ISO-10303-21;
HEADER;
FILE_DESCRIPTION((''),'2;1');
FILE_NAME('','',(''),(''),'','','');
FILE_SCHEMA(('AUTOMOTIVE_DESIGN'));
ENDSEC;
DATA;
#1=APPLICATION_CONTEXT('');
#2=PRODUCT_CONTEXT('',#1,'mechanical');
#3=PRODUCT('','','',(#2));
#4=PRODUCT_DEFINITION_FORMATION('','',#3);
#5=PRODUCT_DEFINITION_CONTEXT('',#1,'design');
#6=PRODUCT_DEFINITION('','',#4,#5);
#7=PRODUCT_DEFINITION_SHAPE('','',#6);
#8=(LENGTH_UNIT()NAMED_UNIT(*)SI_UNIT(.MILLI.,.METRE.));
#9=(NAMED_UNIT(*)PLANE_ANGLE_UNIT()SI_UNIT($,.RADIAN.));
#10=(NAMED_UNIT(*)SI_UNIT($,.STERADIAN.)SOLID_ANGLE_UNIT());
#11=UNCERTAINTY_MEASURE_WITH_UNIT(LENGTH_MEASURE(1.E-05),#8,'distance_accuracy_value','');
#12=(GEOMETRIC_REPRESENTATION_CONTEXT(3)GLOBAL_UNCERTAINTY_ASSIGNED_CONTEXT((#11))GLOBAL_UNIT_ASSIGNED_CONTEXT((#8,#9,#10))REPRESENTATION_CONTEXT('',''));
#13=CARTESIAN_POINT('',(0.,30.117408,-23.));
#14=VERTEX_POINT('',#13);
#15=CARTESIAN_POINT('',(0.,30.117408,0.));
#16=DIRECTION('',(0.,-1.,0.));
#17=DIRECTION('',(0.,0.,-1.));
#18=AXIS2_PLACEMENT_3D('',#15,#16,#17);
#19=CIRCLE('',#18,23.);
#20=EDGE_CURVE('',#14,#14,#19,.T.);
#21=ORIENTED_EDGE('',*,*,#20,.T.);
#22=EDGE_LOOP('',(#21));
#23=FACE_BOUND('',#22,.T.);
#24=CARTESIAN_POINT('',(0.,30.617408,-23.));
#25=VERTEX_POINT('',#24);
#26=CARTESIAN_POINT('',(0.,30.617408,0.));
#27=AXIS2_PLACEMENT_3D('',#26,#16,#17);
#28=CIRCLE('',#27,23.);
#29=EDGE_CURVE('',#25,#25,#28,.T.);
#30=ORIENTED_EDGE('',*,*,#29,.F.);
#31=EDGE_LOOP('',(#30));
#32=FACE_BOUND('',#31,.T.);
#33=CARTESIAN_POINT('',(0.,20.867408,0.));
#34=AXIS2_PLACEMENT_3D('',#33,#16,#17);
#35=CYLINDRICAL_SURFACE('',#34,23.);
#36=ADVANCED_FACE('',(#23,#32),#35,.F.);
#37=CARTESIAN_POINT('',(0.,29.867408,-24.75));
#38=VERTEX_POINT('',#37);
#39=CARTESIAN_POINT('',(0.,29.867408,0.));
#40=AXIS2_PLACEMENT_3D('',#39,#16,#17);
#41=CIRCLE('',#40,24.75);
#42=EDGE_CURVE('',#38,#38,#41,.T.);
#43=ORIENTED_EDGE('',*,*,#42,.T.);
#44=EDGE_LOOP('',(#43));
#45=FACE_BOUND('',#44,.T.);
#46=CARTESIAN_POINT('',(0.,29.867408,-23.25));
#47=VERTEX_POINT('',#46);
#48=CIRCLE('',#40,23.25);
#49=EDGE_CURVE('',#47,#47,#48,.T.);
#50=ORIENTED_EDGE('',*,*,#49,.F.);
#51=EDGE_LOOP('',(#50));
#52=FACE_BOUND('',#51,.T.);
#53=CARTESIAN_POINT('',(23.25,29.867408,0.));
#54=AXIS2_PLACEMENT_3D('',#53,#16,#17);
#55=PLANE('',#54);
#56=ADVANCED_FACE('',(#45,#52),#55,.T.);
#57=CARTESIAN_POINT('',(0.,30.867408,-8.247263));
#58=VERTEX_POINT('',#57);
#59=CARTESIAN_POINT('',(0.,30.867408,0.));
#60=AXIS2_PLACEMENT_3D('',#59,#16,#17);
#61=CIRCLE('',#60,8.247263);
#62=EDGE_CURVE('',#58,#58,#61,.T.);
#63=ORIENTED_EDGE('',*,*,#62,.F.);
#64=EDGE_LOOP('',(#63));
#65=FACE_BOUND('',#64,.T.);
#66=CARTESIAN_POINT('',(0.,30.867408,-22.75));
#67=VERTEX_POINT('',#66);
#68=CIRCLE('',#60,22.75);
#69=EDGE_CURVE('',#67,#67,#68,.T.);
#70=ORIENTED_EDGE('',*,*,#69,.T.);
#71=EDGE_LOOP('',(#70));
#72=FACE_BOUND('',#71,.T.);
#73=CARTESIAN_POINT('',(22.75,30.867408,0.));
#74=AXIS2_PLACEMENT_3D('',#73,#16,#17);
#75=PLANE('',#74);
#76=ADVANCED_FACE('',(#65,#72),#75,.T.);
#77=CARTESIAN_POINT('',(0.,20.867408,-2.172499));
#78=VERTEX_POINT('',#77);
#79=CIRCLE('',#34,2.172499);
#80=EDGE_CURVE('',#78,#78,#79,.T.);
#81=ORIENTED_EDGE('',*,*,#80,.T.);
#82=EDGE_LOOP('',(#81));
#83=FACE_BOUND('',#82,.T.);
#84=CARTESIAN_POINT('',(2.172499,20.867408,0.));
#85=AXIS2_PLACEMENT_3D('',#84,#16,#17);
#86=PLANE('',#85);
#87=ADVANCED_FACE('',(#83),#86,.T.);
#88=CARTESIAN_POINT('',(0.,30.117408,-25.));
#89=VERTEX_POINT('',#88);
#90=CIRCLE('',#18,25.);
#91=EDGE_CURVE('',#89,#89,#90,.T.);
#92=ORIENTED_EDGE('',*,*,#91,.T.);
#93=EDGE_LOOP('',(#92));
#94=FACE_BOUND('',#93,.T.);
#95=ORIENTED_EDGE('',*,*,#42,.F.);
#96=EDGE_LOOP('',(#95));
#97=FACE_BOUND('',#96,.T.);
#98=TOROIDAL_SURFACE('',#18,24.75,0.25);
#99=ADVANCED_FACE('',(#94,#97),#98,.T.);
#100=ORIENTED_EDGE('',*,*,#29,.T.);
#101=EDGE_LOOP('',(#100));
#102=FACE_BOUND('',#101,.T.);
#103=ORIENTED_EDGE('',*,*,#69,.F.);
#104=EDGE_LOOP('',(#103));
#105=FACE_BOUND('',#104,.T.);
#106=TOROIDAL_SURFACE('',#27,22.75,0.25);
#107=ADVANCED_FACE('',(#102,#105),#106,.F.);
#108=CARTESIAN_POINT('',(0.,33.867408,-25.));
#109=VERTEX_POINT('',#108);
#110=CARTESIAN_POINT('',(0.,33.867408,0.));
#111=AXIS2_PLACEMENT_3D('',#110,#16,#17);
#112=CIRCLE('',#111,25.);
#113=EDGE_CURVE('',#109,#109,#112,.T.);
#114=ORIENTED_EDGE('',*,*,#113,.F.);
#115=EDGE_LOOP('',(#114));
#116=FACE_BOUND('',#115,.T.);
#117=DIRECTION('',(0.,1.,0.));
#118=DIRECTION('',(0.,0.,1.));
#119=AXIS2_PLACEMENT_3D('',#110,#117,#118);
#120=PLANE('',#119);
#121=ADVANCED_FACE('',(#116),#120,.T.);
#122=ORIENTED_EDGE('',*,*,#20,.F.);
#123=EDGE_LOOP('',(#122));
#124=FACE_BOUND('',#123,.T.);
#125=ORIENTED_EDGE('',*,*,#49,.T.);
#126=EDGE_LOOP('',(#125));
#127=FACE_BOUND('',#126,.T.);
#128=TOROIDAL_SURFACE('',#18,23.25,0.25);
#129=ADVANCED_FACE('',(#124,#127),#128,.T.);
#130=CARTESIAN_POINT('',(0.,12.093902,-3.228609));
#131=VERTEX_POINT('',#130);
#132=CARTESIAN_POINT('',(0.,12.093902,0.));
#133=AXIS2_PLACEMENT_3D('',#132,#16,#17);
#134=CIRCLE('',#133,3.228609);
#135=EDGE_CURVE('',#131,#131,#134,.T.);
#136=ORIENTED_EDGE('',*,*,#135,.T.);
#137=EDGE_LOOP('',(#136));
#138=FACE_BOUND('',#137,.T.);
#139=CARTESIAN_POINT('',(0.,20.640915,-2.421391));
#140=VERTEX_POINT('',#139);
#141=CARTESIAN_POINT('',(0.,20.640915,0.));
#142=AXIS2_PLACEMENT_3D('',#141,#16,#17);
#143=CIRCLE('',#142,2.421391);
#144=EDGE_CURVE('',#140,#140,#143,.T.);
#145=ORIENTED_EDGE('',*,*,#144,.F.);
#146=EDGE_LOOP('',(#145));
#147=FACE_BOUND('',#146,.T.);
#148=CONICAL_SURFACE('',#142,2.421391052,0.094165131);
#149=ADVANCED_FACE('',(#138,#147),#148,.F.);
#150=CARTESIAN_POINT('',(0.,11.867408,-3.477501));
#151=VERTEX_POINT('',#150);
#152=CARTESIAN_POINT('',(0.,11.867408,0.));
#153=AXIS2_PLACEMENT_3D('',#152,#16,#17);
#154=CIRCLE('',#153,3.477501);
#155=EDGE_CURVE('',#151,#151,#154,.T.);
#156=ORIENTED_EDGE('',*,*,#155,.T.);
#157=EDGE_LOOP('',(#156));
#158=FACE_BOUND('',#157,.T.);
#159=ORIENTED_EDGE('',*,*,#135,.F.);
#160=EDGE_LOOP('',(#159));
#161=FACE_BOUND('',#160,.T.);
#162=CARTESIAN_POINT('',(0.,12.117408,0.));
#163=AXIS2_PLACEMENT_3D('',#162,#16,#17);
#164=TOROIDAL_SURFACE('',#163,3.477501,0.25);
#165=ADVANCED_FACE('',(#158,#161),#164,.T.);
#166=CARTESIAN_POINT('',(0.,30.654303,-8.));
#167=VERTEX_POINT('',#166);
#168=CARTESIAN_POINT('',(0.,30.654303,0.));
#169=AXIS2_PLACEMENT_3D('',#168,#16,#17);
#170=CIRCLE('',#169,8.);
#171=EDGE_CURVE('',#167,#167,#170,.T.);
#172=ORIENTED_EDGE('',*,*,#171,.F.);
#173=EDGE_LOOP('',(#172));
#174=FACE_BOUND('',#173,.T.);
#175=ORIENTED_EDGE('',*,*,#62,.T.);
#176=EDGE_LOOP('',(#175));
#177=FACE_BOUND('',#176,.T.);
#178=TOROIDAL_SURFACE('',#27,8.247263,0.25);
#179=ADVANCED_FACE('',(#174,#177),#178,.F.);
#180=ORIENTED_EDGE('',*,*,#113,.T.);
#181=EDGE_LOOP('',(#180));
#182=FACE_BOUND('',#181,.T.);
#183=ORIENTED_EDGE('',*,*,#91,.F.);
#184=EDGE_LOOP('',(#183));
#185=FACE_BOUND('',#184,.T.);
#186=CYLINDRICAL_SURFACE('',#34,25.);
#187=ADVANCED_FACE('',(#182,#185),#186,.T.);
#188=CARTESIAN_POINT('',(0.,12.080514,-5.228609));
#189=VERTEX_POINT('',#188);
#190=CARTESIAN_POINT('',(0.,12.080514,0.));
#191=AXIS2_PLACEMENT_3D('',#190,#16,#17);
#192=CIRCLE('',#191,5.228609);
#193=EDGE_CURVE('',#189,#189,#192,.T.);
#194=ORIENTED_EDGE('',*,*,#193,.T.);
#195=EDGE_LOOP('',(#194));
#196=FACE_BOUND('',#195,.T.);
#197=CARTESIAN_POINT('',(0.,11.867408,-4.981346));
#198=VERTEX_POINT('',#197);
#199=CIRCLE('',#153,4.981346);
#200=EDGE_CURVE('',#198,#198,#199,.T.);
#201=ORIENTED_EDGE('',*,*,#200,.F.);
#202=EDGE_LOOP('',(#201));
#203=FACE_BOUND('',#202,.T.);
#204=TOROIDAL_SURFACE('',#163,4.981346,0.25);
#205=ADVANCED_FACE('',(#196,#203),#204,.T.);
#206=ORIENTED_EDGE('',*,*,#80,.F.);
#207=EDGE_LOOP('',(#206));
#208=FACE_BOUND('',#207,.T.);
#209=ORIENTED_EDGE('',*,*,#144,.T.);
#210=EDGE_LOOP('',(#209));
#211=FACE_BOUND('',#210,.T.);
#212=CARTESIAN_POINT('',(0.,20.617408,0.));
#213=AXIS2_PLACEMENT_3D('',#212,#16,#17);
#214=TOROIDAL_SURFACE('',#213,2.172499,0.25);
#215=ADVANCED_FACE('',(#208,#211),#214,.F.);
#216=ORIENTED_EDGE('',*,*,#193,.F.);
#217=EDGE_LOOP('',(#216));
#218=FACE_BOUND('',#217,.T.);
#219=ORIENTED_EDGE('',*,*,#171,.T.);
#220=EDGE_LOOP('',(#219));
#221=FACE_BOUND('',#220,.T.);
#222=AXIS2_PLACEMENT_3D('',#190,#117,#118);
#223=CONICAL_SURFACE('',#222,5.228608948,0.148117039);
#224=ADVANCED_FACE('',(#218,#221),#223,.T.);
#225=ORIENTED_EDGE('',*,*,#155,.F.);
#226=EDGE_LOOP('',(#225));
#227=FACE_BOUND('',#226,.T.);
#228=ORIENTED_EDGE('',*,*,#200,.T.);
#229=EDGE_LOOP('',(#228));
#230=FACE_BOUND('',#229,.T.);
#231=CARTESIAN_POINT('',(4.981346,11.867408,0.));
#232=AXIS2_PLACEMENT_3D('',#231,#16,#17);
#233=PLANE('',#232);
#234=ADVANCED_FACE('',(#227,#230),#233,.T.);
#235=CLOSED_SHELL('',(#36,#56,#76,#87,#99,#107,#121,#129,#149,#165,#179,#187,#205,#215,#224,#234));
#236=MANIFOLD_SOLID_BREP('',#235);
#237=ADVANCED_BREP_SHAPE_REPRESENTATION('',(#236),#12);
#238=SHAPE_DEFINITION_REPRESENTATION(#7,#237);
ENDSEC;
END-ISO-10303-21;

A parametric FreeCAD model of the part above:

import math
import FreeCAD as App
import Part
import Sketcher
from FreeCAD import Vector
Q = App.Units.Quantity

doc = App.newDocument("Part")
body = doc.addObject("PartDesign::Body", "Body")

sketch1 = body.newObject("Sketcher::SketchObject", "Sketch")
sketch1.AttachmentSupport = (doc.getObject("XY_Plane"), [""])
sketch1.MapMode = "FlatFace"
sketch1.addGeometry(Part.LineSegment(Vector(2.42, 20.64, 0), Vector(3.23, 12.09, 0)), False)
sketch1.addGeometry(Part.ArcOfCircle(Part.Circle(Vector(3.48, 12.12, 0), Vector(0, 0, 1), 0.25), math.radians(-175), math.radians(-90)), False)
sketch1.addGeometry(Part.LineSegment(Vector(3.48, 11.87, 0), Vector(4.98, 11.87, 0)), False)
sketch1.addGeometry(Part.ArcOfCircle(Part.Circle(Vector(4.98, 12.12, 0), Vector(0, 0, 1), 0.25), math.radians(-90), math.radians(-8)), False)
sketch1.addGeometry(Part.LineSegment(Vector(5.23, 12.08, 0), Vector(8, 30.65, 0)), False)
sketch1.addGeometry(Part.ArcOfCircle(Part.Circle(Vector(8.25, 30.62, 0), Vector(0, 0, 1), 0.25), math.radians(90), math.radians(172)), False)
sketch1.addGeometry(Part.LineSegment(Vector(8.25, 30.87, 0), Vector(22.75, 30.87, 0)), False)
sketch1.addGeometry(Part.ArcOfCircle(Part.Circle(Vector(22.75, 30.62, 0), Vector(0, 0, 1), 0.25), math.radians(0), math.radians(90)), False)
sketch1.addGeometry(Part.LineSegment(Vector(23, 30.62, 0), Vector(23, 30.12, 0)), False)
sketch1.addGeometry(Part.ArcOfCircle(Part.Circle(Vector(23.25, 30.12, 0), Vector(0, 0, 1), 0.25), math.radians(-180), math.radians(-90)), False)
sketch1.addGeometry(Part.LineSegment(Vector(23.25, 29.87, 0), Vector(24.75, 29.87, 0)), False)
sketch1.addGeometry(Part.ArcOfCircle(Part.Circle(Vector(24.75, 30.12, 0), Vector(0, 0, 1), 0.25), math.radians(-90), math.radians(0)), False)
sketch1.addGeometry(Part.LineSegment(Vector(25, 30.12, 0), Vector(25, 33.87, 0)), False)
sketch1.addGeometry(Part.LineSegment(Vector(25, 33.87, 0), Vector(0, 33.87, 0)), False)
sketch1.addGeometry(Part.LineSegment(Vector(0, 33.87, 0), Vector(0, 20.87, 0)), False)
sketch1.addGeometry(Part.LineSegment(Vector(0, 20.87, 0), Vector(2.17, 20.87, 0)), False)
sketch1.addGeometry(Part.ArcOfCircle(Part.Circle(Vector(2.17, 20.62, 0), Vector(0, 0, 1), 0.25), math.radians(5), math.radians(90)), False)
sketch1.addConstraint(Sketcher.Constraint("Tangent", 0, 2, 1, 1))
sketch1.addConstraint(Sketcher.Constraint("Tangent", 1, 2, 2, 1))
sketch1.addConstraint(Sketcher.Constraint("Tangent", 2, 2, 3, 1))
sketch1.addConstraint(Sketcher.Constraint("Tangent", 3, 2, 4, 1))
sketch1.addConstraint(Sketcher.Constraint("Tangent", 4, 2, 5, 2))
sketch1.addConstraint(Sketcher.Constraint("Tangent", 5, 1, 6, 1))
sketch1.addConstraint(Sketcher.Constraint("Tangent", 6, 2, 7, 2))
sketch1.addConstraint(Sketcher.Constraint("Tangent", 7, 1, 8, 1))
sketch1.addConstraint(Sketcher.Constraint("Tangent", 8, 2, 9, 1))
sketch1.addConstraint(Sketcher.Constraint("Tangent", 9, 2, 10, 1))
sketch1.addConstraint(Sketcher.Constraint("Tangent", 10, 2, 11, 1))
sketch1.addConstraint(Sketcher.Constraint("Tangent", 11, 2, 12, 1))
sketch1.addConstraint(Sketcher.Constraint("Coincident", 12, 2, 13, 1))
sketch1.addConstraint(Sketcher.Constraint("Coincident", 13, 2, 14, 1))
sketch1.addConstraint(Sketcher.Constraint("Coincident", 14, 2, 15, 1))
sketch1.addConstraint(Sketcher.Constraint("Tangent", 15, 2, 16, 2))
sketch1.addConstraint(Sketcher.Constraint("Tangent", 16, 1, 0, 1))
sketch1.addConstraint(Sketcher.Constraint("Horizontal", 2))
sketch1.addConstraint(Sketcher.Constraint("Horizontal", 6))
sketch1.addConstraint(Sketcher.Constraint("Vertical", 8))
sketch1.addConstraint(Sketcher.Constraint("Horizontal", 10))
sketch1.addConstraint(Sketcher.Constraint("Vertical", 12))
sketch1.addConstraint(Sketcher.Constraint("Horizontal", 13))
sketch1.addConstraint(Sketcher.Constraint("Vertical", 14))
sketch1.addConstraint(Sketcher.Constraint("Horizontal", 15))
sketch1.addConstraint(Sketcher.Constraint("Equal", 1, 3))
sketch1.addConstraint(Sketcher.Constraint("Equal", 3, 5))
sketch1.addConstraint(Sketcher.Constraint("Equal", 5, 7))
sketch1.addConstraint(Sketcher.Constraint("Equal", 7, 9))
sketch1.addConstraint(Sketcher.Constraint("Equal", 9, 11))
sketch1.addConstraint(Sketcher.Constraint("Equal", 11, 16))
sketch1.addConstraint(Sketcher.Constraint("PointOnObject", 13, 2, -2))
sketch1.addConstraint(Sketcher.Constraint("DistanceX", 13, 2, 13, 1, Q("25 mm")))
sketch1.addConstraint(Sketcher.Constraint("DistanceY", 14, 2, 14, 1, Q("13 mm")))
sketch1.addConstraint(Sketcher.Constraint("Radius", 1, Q("0.25 mm")))
sketch1.addConstraint(Sketcher.Constraint("DistanceX", 10, 1, 10, 2, Q("1.5 mm")))
sketch1.addConstraint(Sketcher.Constraint("DistanceY", 8, 2, 8, 1, Q("0.5 mm")))
sketch1.addConstraint(Sketcher.Constraint("DistanceX", -1, 1, 4, 2, Q("8 mm")))
sketch1.addConstraint(Sketcher.Constraint("DistanceY", 3, 3, 9, 3, Q("18 mm")))
sketch1.addConstraint(Sketcher.Constraint("DistanceY", 16, 3, 5, 3, Q("10 mm")))
sketch1.addConstraint(Sketcher.Constraint("DistanceX", 0, 2, 3, 2, Q("2 mm")))
sketch1.addConstraint(Sketcher.Constraint("DistanceX", 15, 1, 15, 2, Q("2.172499 mm")))
sketch1.addConstraint(Sketcher.Constraint("DistanceX", -1, 1, 1, 3, Q("3.477501 mm")))
sketch1.addConstraint(Sketcher.Constraint("DistanceY", -1, 1, 0, 2, Q("12.093902 mm")))
revolution = body.newObject("PartDesign::Revolution", "Revolution")
revolution.Profile = sketch1
revolution.ReferenceAxis = (sketch1, ["V_Axis"])
revolution.Angle = 360

doc.recompute()
